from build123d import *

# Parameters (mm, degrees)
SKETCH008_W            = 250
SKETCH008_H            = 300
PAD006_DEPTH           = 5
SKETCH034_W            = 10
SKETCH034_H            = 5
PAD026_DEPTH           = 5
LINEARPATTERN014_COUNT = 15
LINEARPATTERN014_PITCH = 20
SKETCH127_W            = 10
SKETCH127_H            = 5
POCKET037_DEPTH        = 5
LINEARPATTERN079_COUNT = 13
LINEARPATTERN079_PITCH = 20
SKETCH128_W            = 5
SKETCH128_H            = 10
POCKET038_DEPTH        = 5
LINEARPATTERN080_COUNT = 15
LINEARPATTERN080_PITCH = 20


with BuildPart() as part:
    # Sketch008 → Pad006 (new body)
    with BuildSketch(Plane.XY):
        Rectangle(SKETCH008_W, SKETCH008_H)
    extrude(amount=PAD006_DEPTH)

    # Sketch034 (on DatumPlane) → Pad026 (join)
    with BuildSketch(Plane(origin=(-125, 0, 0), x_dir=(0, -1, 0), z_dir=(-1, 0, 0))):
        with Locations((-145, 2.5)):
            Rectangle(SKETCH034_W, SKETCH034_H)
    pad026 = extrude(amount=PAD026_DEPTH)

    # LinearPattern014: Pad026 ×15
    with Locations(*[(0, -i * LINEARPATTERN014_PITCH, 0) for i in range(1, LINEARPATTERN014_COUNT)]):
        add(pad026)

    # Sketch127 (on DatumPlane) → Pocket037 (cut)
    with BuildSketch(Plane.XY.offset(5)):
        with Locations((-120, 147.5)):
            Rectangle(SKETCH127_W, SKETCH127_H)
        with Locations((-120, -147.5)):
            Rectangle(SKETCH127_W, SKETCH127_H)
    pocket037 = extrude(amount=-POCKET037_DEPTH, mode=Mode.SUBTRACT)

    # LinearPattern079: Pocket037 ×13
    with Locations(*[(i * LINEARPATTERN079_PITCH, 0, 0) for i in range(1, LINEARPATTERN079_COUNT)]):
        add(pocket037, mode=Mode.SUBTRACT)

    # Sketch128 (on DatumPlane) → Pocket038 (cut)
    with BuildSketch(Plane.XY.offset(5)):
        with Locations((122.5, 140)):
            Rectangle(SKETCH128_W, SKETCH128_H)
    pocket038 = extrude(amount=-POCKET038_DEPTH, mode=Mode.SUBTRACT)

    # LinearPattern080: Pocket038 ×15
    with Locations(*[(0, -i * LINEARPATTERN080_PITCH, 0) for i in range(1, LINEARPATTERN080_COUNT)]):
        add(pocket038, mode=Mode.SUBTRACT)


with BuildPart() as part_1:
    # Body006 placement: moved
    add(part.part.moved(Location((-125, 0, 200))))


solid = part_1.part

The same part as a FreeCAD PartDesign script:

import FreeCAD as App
import Part
import Sketcher

doc = App.newDocument("Part")
body = doc.addObject("PartDesign::Body", "Body")

sketch1 = body.newObject("Sketcher::SketchObject", "Sketch")
sketch1.AttachmentSupport = (doc.getObject("XY_Plane"), [""])
sketch1.MapMode = "FlatFace"
sketch1.addGeometry(Part.LineSegment(App.Vector(-125, 150, 0), App.Vector(-125, -150, 0)), False)
sketch1.addGeometry(Part.LineSegment(App.Vector(-125, -150, 0), App.Vector(125, -150, 0)), False)
sketch1.addGeometry(Part.LineSegment(App.Vector(125, -150, 0), App.Vector(125, 150, 0)), False)
sketch1.addGeometry(Part.LineSegment(App.Vector(125, 150, 0), App.Vector(-125, 150, 0)), False)
sketch1.addConstraint(Sketcher.Constraint("Coincident", 0, 2, 1, 1))
sketch1.addConstraint(Sketcher.Constraint("Coincident", 1, 2, 2, 1))
sketch1.addConstraint(Sketcher.Constraint("Coincident", 2, 2, 3, 1))
sketch1.addConstraint(Sketcher.Constraint("Coincident", 3, 2, 0, 1))
sketch1.addConstraint(Sketcher.Constraint("Vertical", 0))
sketch1.addConstraint(Sketcher.Constraint("Horizontal", 1))
sketch1.addConstraint(Sketcher.Constraint("Vertical", 2))
sketch1.addConstraint(Sketcher.Constraint("Horizontal", 3))
sketch1.addConstraint(Sketcher.Constraint("Symmetric", 0, 2, 2, 2, -1, 1))
sketch1.addConstraint(Sketcher.Constraint("DistanceX", 1, 1, 1, 2, 250.0))
sketch1.addConstraint(Sketcher.Constraint("DistanceY", 0, 2, 0, 1, 300.0))
pad1 = body.newObject("PartDesign::Pad", "Pad")
pad1.Profile = sketch1
pad1.Length = 5

sketch2 = body.newObject("Sketcher::SketchObject", "Sketch001")
sketch2.AttachmentSupport = (doc.getObject("YZ_Plane"), [""])
sketch2.MapMode = "FlatFace"
sketch2.AttachmentOffset = App.Placement(App.Vector(0, 0, -125), App.Rotation())
sketch2.addGeometry(Part.LineSegment(App.Vector(150, 5, 0), App.Vector(150, 0, 0)), False)
sketch2.addGeometry(Part.LineSegment(App.Vector(150, 0, 0), App.Vector(140, 0, 0)), False)
sketch2.addGeometry(Part.LineSegment(App.Vector(140, 0, 0), App.Vector(140, 5, 0)), False)
sketch2.addGeometry(Part.LineSegment(App.Vector(140, 5, 0), App.Vector(150, 5, 0)), False)
sketch2.addConstraint(Sketcher.Constraint("Coincident", 0, 2, 1, 1))
sketch2.addConstraint(Sketcher.Constraint("Coincident", 1, 2, 2, 1))
sketch2.addConstraint(Sketcher.Constraint("Coincident", 2, 2, 3, 1))
sketch2.addConstraint(Sketcher.Constraint("Coincident", 3, 2, 0, 1))
sketch2.addConstraint(Sketcher.Constraint("Vertical", 0))
sketch2.addConstraint(Sketcher.Constraint("Horizontal", 1))
sketch2.addConstraint(Sketcher.Constraint("Vertical", 2))
sketch2.addConstraint(Sketcher.Constraint("Horizontal", 3))
sketch2.addConstraint(Sketcher.Constraint("PointOnObject", 0, 2, -1))
sketch2.addConstraint(Sketcher.Constraint("DistanceX", 1, 2, 1, 1, 10.0))
sketch2.addConstraint(Sketcher.Constraint("DistanceY", 0, 2, 0, 1, 5.0))
sketch2.addConstraint(Sketcher.Constraint("DistanceX", -1, 1, 0, 2, 150.0))
pad2 = body.newObject("PartDesign::Pad", "Pad001")
pad2.Profile = sketch2
pad2.Length = 5
pad2.Reversed = True
doc.recompute()

linearpattern = body.newObject("PartDesign::LinearPattern", "LinearPattern")
linearpattern.Originals = [pad2]
linearpattern.Direction = (doc.getObject("Y_Axis"), [""])
linearpattern.Mode = "offset"
linearpattern.Offset = 20
linearpattern.Occurrences = 15
linearpattern.Reversed = True
body.Tip = linearpattern

sketch3 = body.newObject("Sketcher::SketchObject", "Sketch002")
sketch3.AttachmentSupport = (doc.getObject("XY_Plane"), [""])
sketch3.MapMode = "FlatFace"
sketch3.AttachmentOffset = App.Placement(App.Vector(0, 0, 5), App.Rotation())
sketch3.addGeometry(Part.LineSegment(App.Vector(-125, 150, 0), App.Vector(-125, 145, 0)), False)
sketch3.addGeometry(Part.LineSegment(App.Vector(-125, 145, 0), App.Vector(-115, 145, 0)), False)
sketch3.addGeometry(Part.LineSegment(App.Vector(-115, 145, 0), App.Vector(-115, 150, 0)), False)
sketch3.addGeometry(Part.LineSegment(App.Vector(-115, 150, 0), App.Vector(-125, 150, 0)), False)
sketch3.addGeometry(Part.LineSegment(App.Vector(-125, -145, 0), App.Vector(-125, -150, 0)), False)
sketch3.addGeometry(Part.LineSegment(App.Vector(-125, -150, 0), App.Vector(-115, -150, 0)), False)
sketch3.addGeometry(Part.LineSegment(App.Vector(-115, -150, 0), App.Vector(-115, -145, 0)), False)
sketch3.addGeometry(Part.LineSegment(App.Vector(-115, -145, 0), App.Vector(-125, -145, 0)), False)
sketch3.addConstraint(Sketcher.Constraint("Coincident", 0, 2, 1, 1))
sketch3.addConstraint(Sketcher.Constraint("Coincident", 1, 2, 2, 1))
sketch3.addConstraint(Sketcher.Constraint("Coincident", 2, 2, 3, 1))
sketch3.addConstraint(Sketcher.Constraint("Coincident", 3, 2, 0, 1))
sketch3.addConstraint(Sketcher.Constraint("Coincident", 4, 2, 5, 1))
sketch3.addConstraint(Sketcher.Constraint("Coincident", 5, 2, 6, 1))
sketch3.addConstraint(Sketcher.Constraint("Coincident", 6, 2, 7, 1))
sketch3.addConstraint(Sketcher.Constraint("Coincident", 7, 2, 4, 1))
sketch3.addConstraint(Sketcher.Constraint("Vertical", 0))
sketch3.addConstraint(Sketcher.Constraint("Horizontal", 1))
sketch3.addConstraint(Sketcher.Constraint("Vertical", 2))
sketch3.addConstraint(Sketcher.Constraint("Horizontal", 3))
sketch3.addConstraint(Sketcher.Constraint("Vertical", 4))
sketch3.addConstraint(Sketcher.Constraint("Horizontal", 5))
sketch3.addConstraint(Sketcher.Constraint("Vertical", 6))
sketch3.addConstraint(Sketcher.Constraint("Horizontal", 7))
sketch3.addConstraint(Sketcher.Constraint("Symmetric", 3, 2, 4, 2, -1))
sketch3.addConstraint(Sketcher.Constraint("Symmetric", 1, 2, 6, 2, -1))
sketch3.addConstraint(Sketcher.Constraint("DistanceX", 1, 1, 1, 2, 10.0))
sketch3.addConstraint(Sketcher.Constraint("DistanceY", 0, 2, 0, 1, 5.0))
sketch3.addConstraint(Sketcher.Constraint("DistanceX", 0, 2, -1, 1, 125.0))
sketch3.addConstraint(Sketcher.Constraint("DistanceY", -1, 1, 0, 2, 145.0))
pocket1 = body.newObject("PartDesign::Pocket", "Pocket")
pocket1.Profile = sketch3
pocket1.Length = 5
doc.recompute()

linearpattern2 = body.newObject("PartDesign::LinearPattern", "LinearPattern001")
linearpattern2.Originals = [pocket1]
linearpattern2.Direction = (doc.getObject("X_Axis"), [""])
linearpattern2.Mode = "offset"
linearpattern2.Offset = 20
linearpattern2.Occurrences = 13
body.Tip = linearpattern2

sketch4 = body.newObject("Sketcher::SketchObject", "Sketch003")
sketch4.AttachmentSupport = (doc.getObject("XY_Plane"), [""])
sketch4.MapMode = "FlatFace"
sketch4.AttachmentOffset = App.Placement(App.Vector(0, 0, 5), App.Rotation())
sketch4.addGeometry(Part.LineSegment(App.Vector(120, 145, 0), App.Vector(120, 135, 0)), False)
sketch4.addGeometry(Part.LineSegment(App.Vector(120, 135, 0), App.Vector(125, 135, 0)), False)
sketch4.addGeometry(Part.LineSegment(App.Vector(125, 135, 0), App.Vector(125, 145, 0)), False)
sketch4.addGeometry(Part.LineSegment(App.Vector(125, 145, 0), App.Vector(120, 145, 0)), False)
sketch4.addConstraint(Sketcher.Constraint("Coincident", 0, 2, 1, 1))
sketch4.addConstraint(Sketcher.Constraint("Coincident", 1, 2, 2, 1))
sketch4.addConstraint(Sketcher.Constraint("Coincident", 2, 2, 3, 1))
sketch4.addConstraint(Sketcher.Constraint("Coincident", 3, 2, 0, 1))
sketch4.addConstraint(Sketcher.Constraint("Vertical", 0))
sketch4.addConstraint(Sketcher.Constraint("Horizontal", 1))
sketch4.addConstraint(Sketcher.Constraint("Vertical", 2))
sketch4.addConstraint(Sketcher.Constraint("Horizontal", 3))
sketch4.addConstraint(Sketcher.Constraint("DistanceX", 1, 1, 1, 2, 5.0))
sketch4.addConstraint(Sketcher.Constraint("DistanceY", 0, 2, 0, 1, 10.0))
sketch4.addConstraint(Sketcher.Constraint("DistanceX", -1, 1, 0, 2, 120.0))
sketch4.addConstraint(Sketcher.Constraint("DistanceY", -1, 1, 0, 2, 135.0))
pocket2 = body.newObject("PartDesign::Pocket", "Pocket001")
pocket2.Profile = sketch4
pocket2.Length = 5
doc.recompute()

linearpattern3 = body.newObject("PartDesign::LinearPattern", "LinearPattern002")
linearpattern3.Originals = [pocket2]
linearpattern3.Direction = (doc.getObject("Y_Axis"), [""])
linearpattern3.Mode = "offset"
linearpattern3.Offset = 20
linearpattern3.Occurrences = 15
linearpattern3.Reversed = True
body.Tip = linearpattern3
body2 = doc.addObject("PartDesign::Body", "Body001")
doc.recompute()

body.Placement = App.Placement(App.Vector(-125, 0, 200), App.Rotation(App.Vector(0, 0, 1), 0))
boolean = body2.newObject("PartDesign::Boolean", "Boolean")
boolean.Type = "Fuse"
boolean.addObjects([body])

doc.recompute()
